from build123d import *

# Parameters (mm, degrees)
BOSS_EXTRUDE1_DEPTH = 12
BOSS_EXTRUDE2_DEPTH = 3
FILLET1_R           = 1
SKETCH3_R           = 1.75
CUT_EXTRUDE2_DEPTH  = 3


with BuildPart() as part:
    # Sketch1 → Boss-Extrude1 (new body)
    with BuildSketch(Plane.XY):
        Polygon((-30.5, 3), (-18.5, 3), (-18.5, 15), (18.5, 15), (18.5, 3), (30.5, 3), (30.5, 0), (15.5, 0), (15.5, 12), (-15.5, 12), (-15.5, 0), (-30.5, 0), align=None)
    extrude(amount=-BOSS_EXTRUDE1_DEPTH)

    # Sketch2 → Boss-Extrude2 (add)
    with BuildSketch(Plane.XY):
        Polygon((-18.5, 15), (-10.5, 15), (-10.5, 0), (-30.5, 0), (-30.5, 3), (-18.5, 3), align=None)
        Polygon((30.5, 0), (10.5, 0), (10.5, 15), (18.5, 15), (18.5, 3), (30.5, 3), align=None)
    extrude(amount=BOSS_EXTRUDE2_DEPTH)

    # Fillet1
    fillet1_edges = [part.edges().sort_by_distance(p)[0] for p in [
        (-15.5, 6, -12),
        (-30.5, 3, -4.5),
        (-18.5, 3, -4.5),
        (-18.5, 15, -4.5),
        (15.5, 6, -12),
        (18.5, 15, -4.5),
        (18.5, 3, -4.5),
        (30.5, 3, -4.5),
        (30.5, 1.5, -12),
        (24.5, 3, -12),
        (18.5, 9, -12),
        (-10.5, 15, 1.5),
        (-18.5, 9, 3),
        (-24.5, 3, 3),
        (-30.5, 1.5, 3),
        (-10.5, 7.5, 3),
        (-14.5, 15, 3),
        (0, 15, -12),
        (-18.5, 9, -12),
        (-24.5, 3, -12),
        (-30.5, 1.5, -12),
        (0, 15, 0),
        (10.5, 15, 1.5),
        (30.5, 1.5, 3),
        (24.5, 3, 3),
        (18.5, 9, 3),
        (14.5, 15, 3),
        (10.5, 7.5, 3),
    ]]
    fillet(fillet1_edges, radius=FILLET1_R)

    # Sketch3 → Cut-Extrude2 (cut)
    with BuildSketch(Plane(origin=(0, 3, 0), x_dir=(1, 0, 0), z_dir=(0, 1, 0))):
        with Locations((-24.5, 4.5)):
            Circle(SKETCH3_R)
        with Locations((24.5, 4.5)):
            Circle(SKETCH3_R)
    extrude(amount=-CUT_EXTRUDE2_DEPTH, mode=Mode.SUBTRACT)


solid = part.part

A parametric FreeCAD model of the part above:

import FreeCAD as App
import Part
import Sketcher

V = App.Vector
Q = App.Units.Quantity


def edges_at(feature, points):
    """Names of the edges that pass closest to the given points."""
    edges = feature.Shape.Edges
    near = lambda p: min(range(len(edges)), key=lambda i: edges[i].distToShape(Part.Vertex(*p))[0])
    return sorted({f"Edge{near(p) + 1}" for p in points})


def add_polygon(sketch, points):
    """Adds a closed chain of lines whose ends are joined by coincident constraints."""
    first, n = sketch.GeometryCount, len(points)
    for a, b in zip(points, points[1:] + points[:1]):
        sketch.addGeometry(Part.LineSegment(App.Vector(*a, 0), App.Vector(*b, 0)), False)
    for i in range(n):
        sketch.addConstraint(Sketcher.Constraint("Coincident", first + i, 2, first + (i + 1) % n, 1))

doc = App.newDocument("Part")
body = doc.addObject("PartDesign::Body", "Body")

# Sketch on XY plane
sketch1 = doc.addObject("Sketcher::SketchObject", "Sketch")
body.addObject(sketch1)
sketch1.AttachmentSupport = (doc.XY_Plane, [""])
sketch1.MapMode = "FlatFace"
add_polygon(sketch1, [(-18.5, 3), (-30.5, 3), (-30.5, 0), (-15.5, 0), (-15.5, 12), (15.5, 12), (15.5, 0), (30.5, 0), (30.5, 3), (18.5, 3), (18.5, 15), (-18.5, 15)])  # lines 0-11
sketch1.addConstraint(Sketcher.Constraint("Horizontal", 0))
sketch1.addConstraint(Sketcher.Constraint("Vertical", 1))
sketch1.addConstraint(Sketcher.Constraint("Horizontal", 2))
sketch1.addConstraint(Sketcher.Constraint("Vertical", 3))
sketch1.addConstraint(Sketcher.Constraint("Horizontal", 4))
sketch1.addConstraint(Sketcher.Constraint("Vertical", 5))
sketch1.addConstraint(Sketcher.Constraint("Horizontal", 6))
sketch1.addConstraint(Sketcher.Constraint("Vertical", 7))
sketch1.addConstraint(Sketcher.Constraint("Horizontal", 8))
sketch1.addConstraint(Sketcher.Constraint("Vertical", 9))
sketch1.addConstraint(Sketcher.Constraint("Horizontal", 10))
sketch1.addConstraint(Sketcher.Constraint("Vertical", 11))
sketch1.addConstraint(Sketcher.Constraint("Symmetric", 2, 2, 5, 2, -1, 1))
sketch1.addConstraint(Sketcher.Constraint("Symmetric", 1, 2, 6, 2, -2))
sketch1.addConstraint(Sketcher.Constraint("Symmetric", 8, 2, 11, 2, -2))
sketch1.addConstraint(Sketcher.Constraint("Equal", 8, 3))
sketch1.addConstraint(Sketcher.Constraint("Equal", 5, 9))
sketch1.addConstraint(Sketcher.Constraint("DistanceX", 0, 2, 0, 1, Q("12 mm")))
sketch1.addConstraint(Sketcher.Constraint("DistanceX", 2, 1, 2, 2, Q("15 mm")))
sketch1.addConstraint(Sketcher.Constraint("DistanceX", 4, 1, 4, 2, Q("31 mm")))
sketch1.addConstraint(Sketcher.Constraint("DistanceY", 1, 2, 1, 1, Q("3 mm")))
pad1 = doc.addObject("PartDesign::Pad", "Pad")
body.addObject(pad1)
pad1.Profile = sketch1
pad1.Length = 12
pad1.Reversed = True

# Sketch on XY plane
sketch2 = doc.addObject("Sketcher::SketchObject", "Sketch001")
body.addObject(sketch2)
sketch2.AttachmentSupport = (doc.XY_Plane, [""])
sketch2.MapMode = "FlatFace"
add_polygon(sketch2, [(-10.5, 15), (-18.5, 15), (-18.5, 3), (-30.5, 3), (-30.5, 0), (-10.5, 0)])  # lines 0-5
add_polygon(sketch2, [(10.5, 0), (30.5, 0), (30.5, 3), (18.5, 3), (18.5, 15), (10.5, 15)])  # lines 6-11
sketch2.addConstraint(Sketcher.Constraint("Horizontal", 0))
sketch2.addConstraint(Sketcher.Constraint("Vertical", 1))
sketch2.addConstraint(Sketcher.Constraint("Horizontal", 2))
sketch2.addConstraint(Sketcher.Constraint("Vertical", 3))
sketch2.addConstraint(Sketcher.Constraint("Horizontal", 4))
sketch2.addConstraint(Sketcher.Constraint("Vertical", 5))
sketch2.addConstraint(Sketcher.Constraint("Horizontal", 6))
sketch2.addConstraint(Sketcher.Constraint("Vertical", 7))
sketch2.addConstraint(Sketcher.Constraint("Horizontal", 8))
sketch2.addConstraint(Sketcher.Constraint("Vertical", 9))
sketch2.addConstraint(Sketcher.Constraint("Horizontal", 10))
sketch2.addConstraint(Sketcher.Constraint("Vertical", 11))
sketch2.addConstraint(Sketcher.Constraint("Symmetric", 3, 2, 6, 2, -1, 1))
sketch2.addConstraint(Sketcher.Constraint("Symmetric", 1, 2, 8, 2, -2))
sketch2.addConstraint(Sketcher.Constraint("Symmetric", 5, 2, 10, 2, -2))
sketch2.addConstraint(Sketcher.Constraint("PointOnObject", 3, 2, -1))
sketch2.addConstraint(Sketcher.Constraint("Equal", 8, 1))
sketch2.addConstraint(Sketcher.Constraint("DistanceX", 0, 2, 0, 1, Q("8 mm")))
sketch2.addConstraint(Sketcher.Constraint("DistanceX", 2, 2, 2, 1, Q("12 mm")))
sketch2.addConstraint(Sketcher.Constraint("DistanceY", 3, 2, 3, 1, Q("3 mm")))
sketch2.addConstraint(Sketcher.Constraint("DistanceX", 4, 2, 6, 2, Q("41 mm")))
pad2 = doc.addObject("PartDesign::Pad", "Pad001")
body.addObject(pad2)
pad2.Profile = sketch2
pad2.Length = 3
doc.recompute()

fillet = doc.addObject("PartDesign::Fillet", "Fillet")
body.addObject(fillet)
fillet.Base = (pad2, edges_at(pad2, [
    (-15.5, 6, -12),
    (-30.5, 3, -4.5),
    (-18.5, 3, -4.5),
    (-18.5, 15, -4.5),
    (15.5, 6, -12),
    (18.5, 15, -4.5),
    (18.5, 3, -4.5),
    (30.5, 3, -4.5),
    (30.5, 1.5, -12),
    (24.5, 3, -12),
    (18.5, 9, -12),
    (-10.5, 15, 1.5),
    (-18.5, 9, 3),
    (-24.5, 3, 3),
    (-30.5, 1.5, 3),
    (-10.5, 7.5, 3),
    (-14.5, 15, 3),
    (0, 15, -12),
    (-18.5, 9, -12),
    (-24.5, 3, -12),
    (-30.5, 1.5, -12),
    (0, 15, 0),
    (10.5, 15, 1.5),
    (30.5, 1.5, 3),
    (24.5, 3, 3),
    (18.5, 9, 3),
    (14.5, 15, 3),
    (10.5, 7.5, 3),
]))
fillet.Radius = 1

# Sketch on XZ plane
sketch3 = doc.addObject("Sketcher::SketchObject", "Sketch002")
body.addObject(sketch3)
sketch3.AttachmentSupport = (doc.XZ_Plane, [""])
sketch3.MapMode = "FlatFace"
sketch3.AttachmentOffset = App.Placement(V(0, 0, -3), App.Rotation())
sketch3.addGeometry(Part.Circle(V(-24.5, -4.5, 0), V(0, 0, 1), 1.75), False)
sketch3.addGeometry(Part.Circle(V(24.5, -4.5, 0), V(0, 0, 1), 1.75), False)
sketch3.addConstraint(Sketcher.Constraint("Equal", 0, 1))
sketch3.addConstraint(Sketcher.Constraint("Symmetric", 0, 3, 1, 3, -2))
sketch3.addConstraint(Sketcher.Constraint("Diameter", 0, Q("3.5 mm")))
sketch3.addConstraint(Sketcher.Constraint("DistanceX", 0, 3, 1, 3, Q("49 mm")))
sketch3.addConstraint(Sketcher.Constraint("DistanceY", 0, 3, -1, 1, Q("4.5 mm")))
pocket1 = doc.addObject("PartDesign::Pocket", "Pocket")
body.addObject(pocket1)
pocket1.Profile = sketch3
pocket1.Length = 3
pocket1.Reversed = True

doc.recompute()
